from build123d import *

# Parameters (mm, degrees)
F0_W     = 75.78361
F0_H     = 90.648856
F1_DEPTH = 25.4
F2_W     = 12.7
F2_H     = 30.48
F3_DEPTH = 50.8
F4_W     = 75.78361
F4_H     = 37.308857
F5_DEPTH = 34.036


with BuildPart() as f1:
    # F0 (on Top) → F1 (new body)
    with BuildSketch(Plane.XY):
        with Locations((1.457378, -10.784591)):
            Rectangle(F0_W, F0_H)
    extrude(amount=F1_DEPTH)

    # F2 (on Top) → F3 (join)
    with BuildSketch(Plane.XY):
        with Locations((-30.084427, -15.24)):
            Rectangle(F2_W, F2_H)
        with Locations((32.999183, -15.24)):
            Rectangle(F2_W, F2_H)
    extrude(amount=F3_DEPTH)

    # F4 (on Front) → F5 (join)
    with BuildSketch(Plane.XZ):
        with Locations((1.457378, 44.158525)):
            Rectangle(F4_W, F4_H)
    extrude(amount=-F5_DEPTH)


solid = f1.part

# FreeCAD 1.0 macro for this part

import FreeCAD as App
import Part
import Sketcher
from FreeCAD import Vector
Q = App.Units.Quantity

doc = App.newDocument("Part")
body = doc.addObject("PartDesign::Body", "Body")

# Sketch on XY plane
sketch1 = body.newObject("Sketcher::SketchObject", "Sketch")
sketch1.AttachmentSupport = (doc.getObject("XY_Plane"), [""])
sketch1.MapMode = "FlatFace"
sketch1.addGeometry([
    Part.LineSegment(Vector(-36, 35, 0), Vector(-36, -56, 0)),
    Part.LineSegment(Vector(-36, -56, 0), Vector(39, -56, 0)),
    Part.LineSegment(Vector(39, -56, 0), Vector(39, 35, 0)),
    Part.LineSegment(Vector(39, 35, 0), Vector(-36, 35, 0)),
], False)
sketch1.addConstraint([
    Sketcher.Constraint("Coincident", 0, 2, 1, 1),
    Sketcher.Constraint("Coincident", 1, 2, 2, 1),
    Sketcher.Constraint("Coincident", 2, 2, 3, 1),
    Sketcher.Constraint("Coincident", 3, 2, 0, 1),
    Sketcher.Constraint("Vertical", 0),
    Sketcher.Constraint("Horizontal", 1),
    Sketcher.Constraint("Vertical", 2),
    Sketcher.Constraint("Horizontal", 3),
    Sketcher.Constraint("DistanceX", 1, 1, 1, 2, Q("75.78361 mm")),
    Sketcher.Constraint("DistanceY", 0, 2, 0, 1, Q("90.648856 mm")),
    Sketcher.Constraint("DistanceY", 0, 2, -1, 1, Q("56.109019 mm")),
    Sketcher.Constraint("DistanceX", 0, 2, -1, 1, Q("36.434427 mm")),
])
pad1 = body.newObject("PartDesign::Pad", "Pad")
pad1.Profile = sketch1
pad1.Length = Q("1 in")

# Sketch on XY plane
sketch2 = body.newObject("Sketcher::SketchObject", "Sketch001")
sketch2.AttachmentSupport = (doc.getObject("XY_Plane"), [""])
sketch2.MapMode = "FlatFace"
sketch2.addGeometry([
    Part.LineSegment(Vector(-36, 0, 0), Vector(-36, -30, 0)),  # 0
    Part.LineSegment(Vector(-36, -30, 0), Vector(-24, -30, 0)),  # 1
    Part.LineSegment(Vector(-24, -30, 0), Vector(-24, 0, 0)),  # 2
    Part.LineSegment(Vector(-24, 0, 0), Vector(-36, 0, 0)),  # 3
    Part.LineSegment(Vector(27, 0, 0), Vector(27, -30, 0)),  # 4
    Part.LineSegment(Vector(27, -30, 0), Vector(39, -30, 0)),  # 5
    Part.LineSegment(Vector(39, -30, 0), Vector(39, 0, 0)),  # 6
    Part.LineSegment(Vector(39, 0, 0), Vector(27, 0, 0)),  # 7
], False)
sketch2.addConstraint([
    Sketcher.Constraint("Coincident", 0, 2, 1, 1),
    Sketcher.Constraint("Coincident", 1, 2, 2, 1),
    Sketcher.Constraint("Coincident", 2, 2, 3, 1),
    Sketcher.Constraint("Coincident", 3, 2, 0, 1),
    Sketcher.Constraint("Coincident", 4, 2, 5, 1),
    Sketcher.Constraint("Coincident", 5, 2, 6, 1),
    Sketcher.Constraint("Coincident", 6, 2, 7, 1),
    Sketcher.Constraint("Coincident", 7, 2, 4, 1),
    Sketcher.Constraint("Vertical", 0),
    Sketcher.Constraint("Horizontal", 1),
    Sketcher.Constraint("Vertical", 2),
    Sketcher.Constraint("Horizontal", 3),
    Sketcher.Constraint("Vertical", 4),
    Sketcher.Constraint("Horizontal", 5),
    Sketcher.Constraint("Vertical", 6),
    Sketcher.Constraint("Horizontal", 7),
    Sketcher.Constraint("PointOnObject", 2, 2, -1),
    Sketcher.Constraint("PointOnObject", 6, 2, -1),
    Sketcher.Constraint("Horizontal", 1, 2, 4, 2),
    Sketcher.Constraint("Equal", 3, 5),
    Sketcher.Constraint("DistanceX", 1, 1, 1, 2, Q("0.5 in")),
    Sketcher.Constraint("DistanceY", 0, 2, 0, 1, Q("1.2 in")),
    Sketcher.Constraint("DistanceX", 1, 2, 4, 2, Q("50.38361 mm")),
    Sketcher.Constraint("DistanceX", 0, 2, -1, 1, Q("36.434427 mm")),
])
pad2 = body.newObject("PartDesign::Pad", "Pad001")
pad2.Profile = sketch2
pad2.Length = Q("2 in")

# Sketch on XZ plane
sketch3 = body.newObject("Sketcher::SketchObject", "Sketch002")
sketch3.AttachmentSupport = (doc.getObject("XZ_Plane"), [""])
sketch3.MapMode = "FlatFace"
sketch3.addGeometry([
    Part.LineSegment(Vector(-36, 63, 0), Vector(-36, 26, 0)),
    Part.LineSegment(Vector(-36, 26, 0), Vector(39, 26, 0)),
    Part.LineSegment(Vector(39, 26, 0), Vector(39, 63, 0)),
    Part.LineSegment(Vector(39, 63, 0), Vector(-36, 63, 0)),
], False)
sketch3.addConstraint([
    Sketcher.Constraint("Coincident", 0, 2, 1, 1),
    Sketcher.Constraint("Coincident", 1, 2, 2, 1),
    Sketcher.Constraint("Coincident", 2, 2, 3, 1),
    Sketcher.Constraint("Coincident", 3, 2, 0, 1),
    Sketcher.Constraint("Vertical", 0),
    Sketcher.Constraint("Horizontal", 1),
    Sketcher.Constraint("Vertical", 2),
    Sketcher.Constraint("Horizontal", 3),
    Sketcher.Constraint("DistanceX", 1, 1, 1, 2, Q("75.78361 mm")),
    Sketcher.Constraint("DistanceY", 0, 2, 0, 1, Q("37.308857 mm")),
    Sketcher.Constraint("DistanceX", 0, 2, -1, 1, Q("36.434427 mm")),
    Sketcher.Constraint("DistanceY", -1, 1, 0, 2, Q("25.504096 mm")),
])
pad3 = body.newObject("PartDesign::Pad", "Pad002")
pad3.Profile = sketch3
pad3.Length = Q("1.34 in")
pad3.Reversed = True

doc.recompute()
